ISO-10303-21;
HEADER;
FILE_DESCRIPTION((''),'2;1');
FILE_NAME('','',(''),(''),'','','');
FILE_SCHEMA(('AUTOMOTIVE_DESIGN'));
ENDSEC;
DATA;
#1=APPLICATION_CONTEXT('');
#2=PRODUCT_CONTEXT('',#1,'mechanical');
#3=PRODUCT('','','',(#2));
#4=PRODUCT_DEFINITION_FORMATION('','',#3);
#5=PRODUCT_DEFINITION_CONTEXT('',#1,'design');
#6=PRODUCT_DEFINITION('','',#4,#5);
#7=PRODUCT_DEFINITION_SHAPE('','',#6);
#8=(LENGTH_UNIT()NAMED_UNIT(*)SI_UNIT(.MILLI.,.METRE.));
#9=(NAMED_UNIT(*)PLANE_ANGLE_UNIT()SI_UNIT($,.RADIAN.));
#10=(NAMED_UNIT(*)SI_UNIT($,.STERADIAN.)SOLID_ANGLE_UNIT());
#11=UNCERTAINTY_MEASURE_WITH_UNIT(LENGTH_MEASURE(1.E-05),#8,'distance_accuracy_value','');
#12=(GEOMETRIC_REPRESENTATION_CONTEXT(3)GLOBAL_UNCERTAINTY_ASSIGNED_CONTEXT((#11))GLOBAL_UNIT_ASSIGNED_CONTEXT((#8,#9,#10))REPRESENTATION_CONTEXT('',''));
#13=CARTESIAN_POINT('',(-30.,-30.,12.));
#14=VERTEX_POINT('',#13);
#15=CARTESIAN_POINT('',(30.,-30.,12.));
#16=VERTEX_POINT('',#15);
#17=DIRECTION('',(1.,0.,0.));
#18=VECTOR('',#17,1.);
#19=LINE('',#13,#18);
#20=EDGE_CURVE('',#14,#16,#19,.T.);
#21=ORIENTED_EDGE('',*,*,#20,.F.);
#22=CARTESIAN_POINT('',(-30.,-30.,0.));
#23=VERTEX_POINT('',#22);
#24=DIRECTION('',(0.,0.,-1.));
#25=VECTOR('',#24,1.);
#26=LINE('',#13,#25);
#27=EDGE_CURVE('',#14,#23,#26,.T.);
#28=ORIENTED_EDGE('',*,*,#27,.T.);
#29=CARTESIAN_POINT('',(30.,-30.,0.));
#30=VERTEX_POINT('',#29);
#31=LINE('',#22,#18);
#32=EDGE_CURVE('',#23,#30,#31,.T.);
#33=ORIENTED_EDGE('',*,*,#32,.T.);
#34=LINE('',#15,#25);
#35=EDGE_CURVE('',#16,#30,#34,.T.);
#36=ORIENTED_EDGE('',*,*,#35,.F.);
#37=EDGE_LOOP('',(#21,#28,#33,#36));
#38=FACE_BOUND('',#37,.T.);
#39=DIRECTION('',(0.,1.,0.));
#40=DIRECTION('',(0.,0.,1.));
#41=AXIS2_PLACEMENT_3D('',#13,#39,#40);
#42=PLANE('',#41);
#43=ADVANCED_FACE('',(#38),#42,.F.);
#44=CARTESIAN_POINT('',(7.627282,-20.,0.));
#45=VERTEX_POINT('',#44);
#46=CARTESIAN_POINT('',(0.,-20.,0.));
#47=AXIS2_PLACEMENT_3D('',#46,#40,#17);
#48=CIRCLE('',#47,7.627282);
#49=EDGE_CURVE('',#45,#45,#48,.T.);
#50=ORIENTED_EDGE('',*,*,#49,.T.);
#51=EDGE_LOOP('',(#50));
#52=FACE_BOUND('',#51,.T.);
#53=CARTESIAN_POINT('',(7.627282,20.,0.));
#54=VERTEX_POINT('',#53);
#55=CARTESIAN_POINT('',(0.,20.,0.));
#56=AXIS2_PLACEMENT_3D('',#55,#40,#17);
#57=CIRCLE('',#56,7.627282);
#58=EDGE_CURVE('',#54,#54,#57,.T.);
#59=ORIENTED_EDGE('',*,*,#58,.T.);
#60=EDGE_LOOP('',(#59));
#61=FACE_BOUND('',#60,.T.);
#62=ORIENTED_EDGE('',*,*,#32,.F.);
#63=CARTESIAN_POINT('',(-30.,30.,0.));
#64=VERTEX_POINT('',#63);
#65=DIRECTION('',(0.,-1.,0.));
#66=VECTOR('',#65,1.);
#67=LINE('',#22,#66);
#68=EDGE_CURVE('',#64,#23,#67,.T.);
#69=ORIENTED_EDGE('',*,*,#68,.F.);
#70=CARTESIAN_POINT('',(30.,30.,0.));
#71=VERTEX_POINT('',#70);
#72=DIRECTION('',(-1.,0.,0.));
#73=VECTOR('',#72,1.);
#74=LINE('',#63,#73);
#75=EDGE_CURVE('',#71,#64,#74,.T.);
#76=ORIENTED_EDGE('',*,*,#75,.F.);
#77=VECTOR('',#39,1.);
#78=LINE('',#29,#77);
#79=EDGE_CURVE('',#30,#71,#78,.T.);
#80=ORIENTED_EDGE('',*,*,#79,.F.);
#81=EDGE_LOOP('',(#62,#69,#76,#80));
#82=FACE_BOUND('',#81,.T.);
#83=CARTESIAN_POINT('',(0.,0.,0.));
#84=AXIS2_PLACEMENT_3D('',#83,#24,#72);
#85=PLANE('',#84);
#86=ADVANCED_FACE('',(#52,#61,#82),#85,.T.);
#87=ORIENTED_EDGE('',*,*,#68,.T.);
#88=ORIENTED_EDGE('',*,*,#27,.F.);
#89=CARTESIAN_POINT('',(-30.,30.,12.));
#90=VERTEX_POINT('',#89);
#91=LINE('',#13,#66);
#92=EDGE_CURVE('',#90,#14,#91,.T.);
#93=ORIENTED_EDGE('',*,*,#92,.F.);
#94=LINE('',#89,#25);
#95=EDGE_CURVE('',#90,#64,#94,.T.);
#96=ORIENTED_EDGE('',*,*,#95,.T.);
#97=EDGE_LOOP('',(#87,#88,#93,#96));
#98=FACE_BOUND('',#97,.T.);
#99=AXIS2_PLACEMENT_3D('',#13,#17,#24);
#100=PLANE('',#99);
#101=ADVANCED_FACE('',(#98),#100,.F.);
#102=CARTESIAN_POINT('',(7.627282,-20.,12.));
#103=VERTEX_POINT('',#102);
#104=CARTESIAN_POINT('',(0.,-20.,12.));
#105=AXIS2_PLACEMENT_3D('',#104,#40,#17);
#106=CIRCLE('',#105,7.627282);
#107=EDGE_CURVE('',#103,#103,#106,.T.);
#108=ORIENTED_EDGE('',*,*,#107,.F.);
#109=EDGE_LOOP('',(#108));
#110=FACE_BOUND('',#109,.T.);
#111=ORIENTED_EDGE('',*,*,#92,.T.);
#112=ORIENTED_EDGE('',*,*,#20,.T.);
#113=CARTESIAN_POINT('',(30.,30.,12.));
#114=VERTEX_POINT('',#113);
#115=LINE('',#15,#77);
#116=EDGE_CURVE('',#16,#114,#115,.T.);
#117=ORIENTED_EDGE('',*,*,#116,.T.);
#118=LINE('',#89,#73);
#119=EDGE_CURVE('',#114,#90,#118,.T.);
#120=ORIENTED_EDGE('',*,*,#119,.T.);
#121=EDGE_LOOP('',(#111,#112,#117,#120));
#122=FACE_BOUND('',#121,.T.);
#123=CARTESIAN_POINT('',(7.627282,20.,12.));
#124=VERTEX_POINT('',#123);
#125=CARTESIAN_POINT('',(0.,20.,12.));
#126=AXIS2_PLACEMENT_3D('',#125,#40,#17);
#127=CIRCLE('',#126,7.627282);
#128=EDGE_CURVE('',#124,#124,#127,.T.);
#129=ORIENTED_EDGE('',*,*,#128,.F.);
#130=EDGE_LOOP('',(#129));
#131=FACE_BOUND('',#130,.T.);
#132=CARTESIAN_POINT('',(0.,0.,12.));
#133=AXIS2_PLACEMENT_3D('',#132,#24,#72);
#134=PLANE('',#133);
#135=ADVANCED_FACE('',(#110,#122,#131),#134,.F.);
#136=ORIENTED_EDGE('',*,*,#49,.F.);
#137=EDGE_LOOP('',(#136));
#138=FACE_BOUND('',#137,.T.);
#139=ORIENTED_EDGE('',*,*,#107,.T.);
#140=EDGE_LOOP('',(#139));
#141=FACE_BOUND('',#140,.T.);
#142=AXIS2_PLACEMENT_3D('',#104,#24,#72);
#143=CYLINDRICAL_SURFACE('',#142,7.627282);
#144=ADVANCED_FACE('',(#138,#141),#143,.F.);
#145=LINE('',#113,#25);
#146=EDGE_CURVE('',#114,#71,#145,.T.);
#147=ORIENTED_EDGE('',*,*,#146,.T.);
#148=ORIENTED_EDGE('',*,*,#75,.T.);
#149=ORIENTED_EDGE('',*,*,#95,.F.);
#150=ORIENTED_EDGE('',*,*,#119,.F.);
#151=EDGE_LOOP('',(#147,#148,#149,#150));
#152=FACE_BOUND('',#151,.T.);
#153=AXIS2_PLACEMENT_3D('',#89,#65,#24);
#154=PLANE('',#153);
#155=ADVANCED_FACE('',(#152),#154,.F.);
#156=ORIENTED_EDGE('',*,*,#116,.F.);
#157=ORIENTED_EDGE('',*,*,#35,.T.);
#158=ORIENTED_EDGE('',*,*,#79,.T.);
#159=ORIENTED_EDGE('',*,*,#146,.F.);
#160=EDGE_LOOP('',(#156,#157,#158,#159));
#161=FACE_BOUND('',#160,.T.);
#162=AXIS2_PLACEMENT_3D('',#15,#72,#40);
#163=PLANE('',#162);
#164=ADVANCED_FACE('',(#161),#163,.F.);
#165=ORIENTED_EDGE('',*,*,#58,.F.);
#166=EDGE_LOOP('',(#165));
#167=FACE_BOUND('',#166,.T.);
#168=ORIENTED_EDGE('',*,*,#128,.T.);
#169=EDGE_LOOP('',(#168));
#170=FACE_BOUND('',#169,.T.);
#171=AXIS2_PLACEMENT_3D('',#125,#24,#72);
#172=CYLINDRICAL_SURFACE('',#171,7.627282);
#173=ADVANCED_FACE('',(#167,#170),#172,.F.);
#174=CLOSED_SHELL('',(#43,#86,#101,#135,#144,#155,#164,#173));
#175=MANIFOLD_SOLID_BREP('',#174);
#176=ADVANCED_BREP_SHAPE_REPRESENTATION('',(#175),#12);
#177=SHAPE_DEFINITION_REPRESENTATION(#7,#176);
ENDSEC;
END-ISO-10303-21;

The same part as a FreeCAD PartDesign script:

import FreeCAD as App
import Part
import Sketcher
from FreeCAD import Vector
Q = App.Units.Quantity

doc = App.newDocument("Part")
body = doc.addObject("PartDesign::Body", "Body")

sketch1 = body.newObject("Sketcher::SketchObject", "Sketch")
sketch1.AttachmentSupport = (doc.getObject("XY_Plane"), [""])
sketch1.MapMode = "FlatFace"
sketch1.addGeometry(Part.LineSegment(Vector(-30, 30, 0), Vector(-30, -30, 0)), False)
sketch1.addGeometry(Part.LineSegment(Vector(-30, -30, 0), Vector(30, -30, 0)), False)
sketch1.addGeometry(Part.LineSegment(Vector(30, -30, 0), Vector(30, 30, 0)), False)
sketch1.addGeometry(Part.LineSegment(Vector(30, 30, 0), Vector(-30, 30, 0)), False)
sketch1.addGeometry(Part.Circle(Vector(0, -20, 0), Vector(0, 0, 1), 8), False)
sketch1.addGeometry(Part.Circle(Vector(0, 20, 0), Vector(0, 0, 1), 8), False)
sketch1.addConstraint(Sketcher.Constraint("Coincident", 0, 2, 1, 1))
sketch1.addConstraint(Sketcher.Constraint("Coincident", 1, 2, 2, 1))
sketch1.addConstraint(Sketcher.Constraint("Coincident", 2, 2, 3, 1))
sketch1.addConstraint(Sketcher.Constraint("Coincident", 3, 2, 0, 1))
sketch1.addConstraint(Sketcher.Constraint("Vertical", 0))
sketch1.addConstraint(Sketcher.Constraint("Horizontal", 1))
sketch1.addConstraint(Sketcher.Constraint("Vertical", 2))
sketch1.addConstraint(Sketcher.Constraint("Horizontal", 3))
sketch1.addConstraint(Sketcher.Constraint("Equal", 4, 5))
sketch1.addConstraint(Sketcher.Constraint("Symmetric", 4, 3, 5, 3, -1, 1))
sketch1.addConstraint(Sketcher.Constraint("Symmetric", 0, 2, 2, 2, -1, 1))
sketch1.addConstraint(Sketcher.Constraint("PointOnObject", 4, 3, -2))
sketch1.addConstraint(Sketcher.Constraint("Equal", 3, 0))
sketch1.addConstraint(Sketcher.Constraint("DistanceX", 1, 1, 1, 2, Q("60 mm")))
sketch1.addConstraint(Sketcher.Constraint("DistanceY", 4, 3, -1, 1, Q("20 mm")))
sketch1.addConstraint(Sketcher.Constraint("Diameter", 4, Q("15.254565 mm")))
pad1 = body.newObject("PartDesign::Pad", "Pad")
pad1.Profile = sketch1
pad1.Length = 12

doc.recompute()
